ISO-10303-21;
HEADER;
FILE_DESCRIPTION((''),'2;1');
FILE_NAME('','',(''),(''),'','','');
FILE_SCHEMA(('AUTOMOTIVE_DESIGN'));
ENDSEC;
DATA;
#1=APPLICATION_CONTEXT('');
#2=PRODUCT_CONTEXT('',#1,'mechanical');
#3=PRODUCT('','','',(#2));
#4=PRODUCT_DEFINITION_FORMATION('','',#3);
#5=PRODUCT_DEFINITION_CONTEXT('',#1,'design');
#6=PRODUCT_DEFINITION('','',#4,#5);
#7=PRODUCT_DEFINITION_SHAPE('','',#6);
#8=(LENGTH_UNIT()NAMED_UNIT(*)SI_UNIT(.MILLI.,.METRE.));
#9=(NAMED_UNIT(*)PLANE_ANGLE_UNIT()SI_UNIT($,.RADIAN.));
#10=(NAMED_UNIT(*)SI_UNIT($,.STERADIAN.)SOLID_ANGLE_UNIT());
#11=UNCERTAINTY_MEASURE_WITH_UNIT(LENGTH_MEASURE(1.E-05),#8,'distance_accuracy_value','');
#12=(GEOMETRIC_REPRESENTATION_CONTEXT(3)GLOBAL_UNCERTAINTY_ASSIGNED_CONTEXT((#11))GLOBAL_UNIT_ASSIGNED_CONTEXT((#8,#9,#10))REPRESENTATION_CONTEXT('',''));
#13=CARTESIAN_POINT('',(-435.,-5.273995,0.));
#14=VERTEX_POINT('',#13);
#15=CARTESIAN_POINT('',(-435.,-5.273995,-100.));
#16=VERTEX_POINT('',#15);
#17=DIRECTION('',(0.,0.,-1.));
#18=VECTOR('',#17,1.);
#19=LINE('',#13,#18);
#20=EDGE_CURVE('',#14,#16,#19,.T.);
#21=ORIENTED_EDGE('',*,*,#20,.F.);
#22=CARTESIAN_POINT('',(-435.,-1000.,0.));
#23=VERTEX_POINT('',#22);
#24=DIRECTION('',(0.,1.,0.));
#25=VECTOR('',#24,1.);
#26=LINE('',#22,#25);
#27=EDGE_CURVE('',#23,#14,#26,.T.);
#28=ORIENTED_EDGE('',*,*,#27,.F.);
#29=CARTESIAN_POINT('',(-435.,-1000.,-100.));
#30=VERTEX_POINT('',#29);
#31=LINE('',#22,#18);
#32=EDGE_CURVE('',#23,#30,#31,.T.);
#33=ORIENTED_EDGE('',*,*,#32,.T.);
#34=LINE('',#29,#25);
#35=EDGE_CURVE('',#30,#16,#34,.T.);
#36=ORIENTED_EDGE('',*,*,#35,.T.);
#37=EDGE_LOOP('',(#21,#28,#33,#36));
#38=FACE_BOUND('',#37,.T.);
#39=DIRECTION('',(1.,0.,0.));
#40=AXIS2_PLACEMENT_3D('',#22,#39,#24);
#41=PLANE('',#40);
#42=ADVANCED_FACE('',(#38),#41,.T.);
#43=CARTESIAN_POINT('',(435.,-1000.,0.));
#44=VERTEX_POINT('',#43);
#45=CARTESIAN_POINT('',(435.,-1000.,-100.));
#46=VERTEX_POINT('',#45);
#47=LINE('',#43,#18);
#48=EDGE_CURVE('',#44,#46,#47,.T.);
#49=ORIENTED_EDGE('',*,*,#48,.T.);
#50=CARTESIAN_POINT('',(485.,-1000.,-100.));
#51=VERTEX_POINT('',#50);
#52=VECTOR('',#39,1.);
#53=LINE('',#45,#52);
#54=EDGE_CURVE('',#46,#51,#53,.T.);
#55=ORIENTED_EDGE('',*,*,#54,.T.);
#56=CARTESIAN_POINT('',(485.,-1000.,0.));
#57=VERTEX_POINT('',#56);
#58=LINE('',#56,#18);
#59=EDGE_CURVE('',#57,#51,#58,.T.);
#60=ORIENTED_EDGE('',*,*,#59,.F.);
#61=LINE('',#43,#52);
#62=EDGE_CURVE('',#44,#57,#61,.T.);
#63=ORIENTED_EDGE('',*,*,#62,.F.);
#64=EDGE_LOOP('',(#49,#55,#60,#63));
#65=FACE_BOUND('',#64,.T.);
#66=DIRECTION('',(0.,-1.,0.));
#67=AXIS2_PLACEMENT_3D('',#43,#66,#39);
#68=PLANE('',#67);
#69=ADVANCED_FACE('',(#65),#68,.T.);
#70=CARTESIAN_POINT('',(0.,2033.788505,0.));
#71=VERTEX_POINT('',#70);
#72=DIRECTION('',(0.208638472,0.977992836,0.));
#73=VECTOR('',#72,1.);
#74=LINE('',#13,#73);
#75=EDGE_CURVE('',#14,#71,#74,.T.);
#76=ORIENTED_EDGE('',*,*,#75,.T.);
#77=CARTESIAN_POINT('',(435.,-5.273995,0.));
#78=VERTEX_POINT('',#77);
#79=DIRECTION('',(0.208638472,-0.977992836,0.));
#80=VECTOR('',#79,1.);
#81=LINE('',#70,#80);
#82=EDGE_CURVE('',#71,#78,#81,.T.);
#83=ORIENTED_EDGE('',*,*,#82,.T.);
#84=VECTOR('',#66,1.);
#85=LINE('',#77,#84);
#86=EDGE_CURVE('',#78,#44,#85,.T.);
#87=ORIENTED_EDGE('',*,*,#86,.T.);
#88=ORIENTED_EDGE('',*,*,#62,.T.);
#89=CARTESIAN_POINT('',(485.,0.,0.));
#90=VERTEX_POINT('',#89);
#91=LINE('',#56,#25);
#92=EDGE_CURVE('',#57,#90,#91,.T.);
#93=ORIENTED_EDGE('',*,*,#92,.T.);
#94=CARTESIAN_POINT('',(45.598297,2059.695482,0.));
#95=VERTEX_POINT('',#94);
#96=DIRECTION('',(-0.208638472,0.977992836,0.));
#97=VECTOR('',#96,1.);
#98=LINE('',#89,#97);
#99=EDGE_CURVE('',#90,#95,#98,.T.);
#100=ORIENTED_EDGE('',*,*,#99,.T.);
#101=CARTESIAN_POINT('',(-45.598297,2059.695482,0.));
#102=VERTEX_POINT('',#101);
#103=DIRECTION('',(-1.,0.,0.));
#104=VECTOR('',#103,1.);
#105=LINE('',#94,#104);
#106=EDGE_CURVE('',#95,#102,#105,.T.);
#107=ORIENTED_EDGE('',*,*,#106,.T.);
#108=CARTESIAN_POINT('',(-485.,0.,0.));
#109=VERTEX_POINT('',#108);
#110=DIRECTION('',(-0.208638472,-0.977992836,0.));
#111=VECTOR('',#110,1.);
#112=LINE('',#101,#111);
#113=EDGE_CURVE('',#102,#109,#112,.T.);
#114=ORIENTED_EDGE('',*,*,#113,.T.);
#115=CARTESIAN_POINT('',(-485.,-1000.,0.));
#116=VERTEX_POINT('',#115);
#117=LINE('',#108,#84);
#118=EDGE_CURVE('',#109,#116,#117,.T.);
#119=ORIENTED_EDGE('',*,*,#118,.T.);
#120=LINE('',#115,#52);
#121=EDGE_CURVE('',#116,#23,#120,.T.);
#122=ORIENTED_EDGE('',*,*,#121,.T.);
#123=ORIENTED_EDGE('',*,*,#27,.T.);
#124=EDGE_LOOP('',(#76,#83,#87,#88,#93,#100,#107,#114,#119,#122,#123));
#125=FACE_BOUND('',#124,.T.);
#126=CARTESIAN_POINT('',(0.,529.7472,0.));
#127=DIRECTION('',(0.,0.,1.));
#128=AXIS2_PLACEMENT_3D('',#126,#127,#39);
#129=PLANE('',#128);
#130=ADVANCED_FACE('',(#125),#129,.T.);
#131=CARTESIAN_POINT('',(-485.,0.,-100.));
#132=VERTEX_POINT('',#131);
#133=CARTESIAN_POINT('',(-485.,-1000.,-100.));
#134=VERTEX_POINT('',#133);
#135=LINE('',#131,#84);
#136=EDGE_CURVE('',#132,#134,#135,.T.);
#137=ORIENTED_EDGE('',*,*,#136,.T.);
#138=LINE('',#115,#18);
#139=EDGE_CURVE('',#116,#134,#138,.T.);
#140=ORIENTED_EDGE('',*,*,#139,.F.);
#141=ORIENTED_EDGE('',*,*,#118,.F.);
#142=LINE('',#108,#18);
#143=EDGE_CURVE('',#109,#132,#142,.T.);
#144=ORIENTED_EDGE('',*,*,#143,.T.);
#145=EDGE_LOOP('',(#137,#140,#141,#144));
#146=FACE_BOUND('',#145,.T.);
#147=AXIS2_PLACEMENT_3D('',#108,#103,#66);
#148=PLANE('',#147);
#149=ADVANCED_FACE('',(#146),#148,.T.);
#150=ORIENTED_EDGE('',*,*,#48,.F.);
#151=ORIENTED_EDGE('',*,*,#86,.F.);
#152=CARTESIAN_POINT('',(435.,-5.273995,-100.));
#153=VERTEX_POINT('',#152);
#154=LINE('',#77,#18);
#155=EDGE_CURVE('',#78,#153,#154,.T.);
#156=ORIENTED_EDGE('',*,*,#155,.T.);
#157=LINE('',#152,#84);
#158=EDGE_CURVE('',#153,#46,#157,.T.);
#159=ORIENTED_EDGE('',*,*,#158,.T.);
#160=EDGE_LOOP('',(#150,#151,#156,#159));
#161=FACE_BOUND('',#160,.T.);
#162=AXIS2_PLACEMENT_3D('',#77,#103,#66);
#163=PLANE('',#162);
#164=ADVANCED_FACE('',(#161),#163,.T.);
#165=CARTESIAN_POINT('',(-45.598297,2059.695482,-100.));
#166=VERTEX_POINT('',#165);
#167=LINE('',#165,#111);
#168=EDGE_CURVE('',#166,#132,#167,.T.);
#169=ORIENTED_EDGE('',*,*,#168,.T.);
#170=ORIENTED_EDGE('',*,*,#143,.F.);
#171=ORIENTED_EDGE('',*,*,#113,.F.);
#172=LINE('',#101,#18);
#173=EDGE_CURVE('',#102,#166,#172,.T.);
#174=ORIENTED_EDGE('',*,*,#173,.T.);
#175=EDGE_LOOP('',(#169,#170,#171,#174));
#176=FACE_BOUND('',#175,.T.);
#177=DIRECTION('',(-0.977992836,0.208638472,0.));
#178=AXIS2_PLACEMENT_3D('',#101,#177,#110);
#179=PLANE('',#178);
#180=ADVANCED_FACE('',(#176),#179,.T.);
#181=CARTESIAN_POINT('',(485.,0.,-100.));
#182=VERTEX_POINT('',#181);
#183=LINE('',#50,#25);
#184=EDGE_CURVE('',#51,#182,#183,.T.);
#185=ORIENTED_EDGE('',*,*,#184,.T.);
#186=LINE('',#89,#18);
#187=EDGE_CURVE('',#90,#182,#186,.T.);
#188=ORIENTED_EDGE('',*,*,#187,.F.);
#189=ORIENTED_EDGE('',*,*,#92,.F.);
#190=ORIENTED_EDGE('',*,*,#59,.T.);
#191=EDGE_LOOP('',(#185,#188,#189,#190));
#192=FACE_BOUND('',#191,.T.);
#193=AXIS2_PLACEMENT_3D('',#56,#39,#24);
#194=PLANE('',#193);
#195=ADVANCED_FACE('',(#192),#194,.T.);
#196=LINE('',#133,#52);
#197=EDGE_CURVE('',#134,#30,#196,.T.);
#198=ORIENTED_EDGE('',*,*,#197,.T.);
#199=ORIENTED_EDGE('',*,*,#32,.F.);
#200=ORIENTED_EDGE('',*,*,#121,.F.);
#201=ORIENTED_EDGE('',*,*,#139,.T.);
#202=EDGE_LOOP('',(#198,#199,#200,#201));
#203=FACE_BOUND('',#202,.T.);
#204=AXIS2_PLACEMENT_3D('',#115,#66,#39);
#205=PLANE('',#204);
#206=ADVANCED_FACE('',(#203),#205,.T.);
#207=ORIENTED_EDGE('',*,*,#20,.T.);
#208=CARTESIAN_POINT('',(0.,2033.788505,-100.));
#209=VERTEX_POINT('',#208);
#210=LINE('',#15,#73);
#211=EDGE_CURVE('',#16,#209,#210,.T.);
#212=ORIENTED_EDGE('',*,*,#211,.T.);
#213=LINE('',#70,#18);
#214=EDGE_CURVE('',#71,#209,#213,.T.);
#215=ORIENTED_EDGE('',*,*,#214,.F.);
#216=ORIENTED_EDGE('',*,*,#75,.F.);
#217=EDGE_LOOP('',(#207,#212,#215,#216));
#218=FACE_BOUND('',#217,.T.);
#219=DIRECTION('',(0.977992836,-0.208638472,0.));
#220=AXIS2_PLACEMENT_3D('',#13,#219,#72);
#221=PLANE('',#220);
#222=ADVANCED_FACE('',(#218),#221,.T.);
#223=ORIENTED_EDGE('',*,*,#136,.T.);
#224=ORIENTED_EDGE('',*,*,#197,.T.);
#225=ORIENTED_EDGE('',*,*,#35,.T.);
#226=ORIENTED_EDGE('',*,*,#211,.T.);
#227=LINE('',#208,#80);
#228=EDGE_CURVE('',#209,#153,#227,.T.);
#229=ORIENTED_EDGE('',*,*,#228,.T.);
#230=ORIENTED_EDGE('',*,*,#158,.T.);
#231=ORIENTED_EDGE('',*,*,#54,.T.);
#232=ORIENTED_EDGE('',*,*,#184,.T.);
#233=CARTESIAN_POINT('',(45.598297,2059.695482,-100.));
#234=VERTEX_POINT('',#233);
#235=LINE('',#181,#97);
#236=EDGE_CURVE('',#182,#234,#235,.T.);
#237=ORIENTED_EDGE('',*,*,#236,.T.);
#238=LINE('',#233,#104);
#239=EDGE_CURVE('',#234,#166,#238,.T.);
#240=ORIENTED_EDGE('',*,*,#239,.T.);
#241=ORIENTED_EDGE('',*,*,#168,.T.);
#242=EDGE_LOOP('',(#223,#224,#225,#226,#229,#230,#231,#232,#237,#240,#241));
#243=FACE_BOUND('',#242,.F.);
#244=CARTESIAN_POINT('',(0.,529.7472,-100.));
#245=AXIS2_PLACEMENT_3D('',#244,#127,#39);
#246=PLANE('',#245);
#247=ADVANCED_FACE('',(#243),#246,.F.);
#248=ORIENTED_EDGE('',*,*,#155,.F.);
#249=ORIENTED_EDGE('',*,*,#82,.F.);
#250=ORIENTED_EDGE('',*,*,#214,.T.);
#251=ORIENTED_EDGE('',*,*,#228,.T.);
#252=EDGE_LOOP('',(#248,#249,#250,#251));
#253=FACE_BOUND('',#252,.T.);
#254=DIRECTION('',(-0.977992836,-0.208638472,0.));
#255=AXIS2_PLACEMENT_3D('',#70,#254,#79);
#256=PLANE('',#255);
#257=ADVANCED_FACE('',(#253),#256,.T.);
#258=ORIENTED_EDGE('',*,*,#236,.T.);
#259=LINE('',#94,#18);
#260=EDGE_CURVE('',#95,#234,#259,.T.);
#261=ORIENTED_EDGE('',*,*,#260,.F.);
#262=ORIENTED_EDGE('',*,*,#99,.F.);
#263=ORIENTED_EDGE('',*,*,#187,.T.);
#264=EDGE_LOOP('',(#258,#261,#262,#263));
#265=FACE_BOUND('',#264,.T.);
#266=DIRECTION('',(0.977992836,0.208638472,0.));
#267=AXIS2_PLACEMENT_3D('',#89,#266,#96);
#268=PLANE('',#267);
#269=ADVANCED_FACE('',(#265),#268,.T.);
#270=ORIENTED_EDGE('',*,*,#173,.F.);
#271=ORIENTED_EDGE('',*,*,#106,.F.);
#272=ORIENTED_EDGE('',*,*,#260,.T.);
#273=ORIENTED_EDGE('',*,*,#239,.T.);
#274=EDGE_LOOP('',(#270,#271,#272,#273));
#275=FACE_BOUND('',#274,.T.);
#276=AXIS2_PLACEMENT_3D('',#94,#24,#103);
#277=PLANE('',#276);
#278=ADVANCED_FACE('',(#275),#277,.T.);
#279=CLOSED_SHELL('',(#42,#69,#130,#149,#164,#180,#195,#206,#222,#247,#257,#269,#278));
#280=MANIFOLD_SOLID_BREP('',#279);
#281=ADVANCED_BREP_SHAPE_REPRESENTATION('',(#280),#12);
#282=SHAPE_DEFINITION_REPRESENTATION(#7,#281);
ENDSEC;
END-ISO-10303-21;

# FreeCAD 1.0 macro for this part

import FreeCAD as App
import Part
import Sketcher

V = App.Vector
Q = App.Units.Quantity

doc = App.newDocument("Part")
body = doc.addObject("PartDesign::Body", "Body")

# Sketch on XY plane
sketch1 = doc.addObject("Sketcher::SketchObject", "Sketch")
body.addObject(sketch1)
sketch1.AttachmentSupport = (doc.XY_Plane, [""])
sketch1.MapMode = "FlatFace"
sketch1.addGeometry([
    Part.LineSegment(V(-485, 0, 0), V(-485, -1000, 0)),  # 0
    Part.LineSegment(V(-485, -1000, 0), V(-435, -1000, 0)),  # 1
    Part.LineSegment(V(-435, -1000, 0), V(-435, -5.273995, 0)),  # 2
    Part.LineSegment(V(-435, -5.273995, 0), V(0, 2033.788505, 0)),  # 3
    Part.LineSegment(V(0, 2033.788505, 0), V(435, -5.273995, 0)),  # 4
    Part.LineSegment(V(435, -5.273995, 0), V(435, -1000, 0)),  # 5
    Part.LineSegment(V(435, -1000, 0), V(485, -1000, 0)),  # 6
    Part.LineSegment(V(485, -1000, 0), V(485, 0, 0)),  # 7
    Part.LineSegment(V(485, 0, 0), V(45.598297, 2059.695482, 0)),  # 8
    Part.LineSegment(V(45.598297, 2059.695482, 0), V(-45.598297, 2059.695482, 0)),  # 9
    Part.LineSegment(V(-45.598297, 2059.695482, 0), V(-485, 0, 0)),  # 10
], False)
sketch1.addConstraint([
    Sketcher.Constraint("Coincident", 0, 2, 1, 1),
    Sketcher.Constraint("Coincident", 1, 2, 2, 1),
    Sketcher.Constraint("Coincident", 2, 2, 3, 1),
    Sketcher.Constraint("Coincident", 3, 2, 4, 1),
    Sketcher.Constraint("Coincident", 4, 2, 5, 1),
    Sketcher.Constraint("Coincident", 5, 2, 6, 1),
    Sketcher.Constraint("Coincident", 6, 2, 7, 1),
    Sketcher.Constraint("Coincident", 7, 2, 8, 1),
    Sketcher.Constraint("Coincident", 8, 2, 9, 1),
    Sketcher.Constraint("Coincident", 9, 2, 10, 1),
    Sketcher.Constraint("Coincident", 10, 2, 0, 1),
    Sketcher.Constraint("Vertical", 0),
    Sketcher.Constraint("Horizontal", 1),
    Sketcher.Constraint("Vertical", 2),
    Sketcher.Constraint("Vertical", 5),
    Sketcher.Constraint("Horizontal", 6),
    Sketcher.Constraint("Vertical", 7),
    Sketcher.Constraint("Horizontal", 9),
    Sketcher.Constraint("Symmetric", 7, 2, 10, 2, -1, 1),
    Sketcher.Constraint("Symmetric", 2, 2, 4, 2, -2),
    Sketcher.Constraint("PointOnObject", 3, 2, -2),
    Sketcher.Constraint("PointOnObject", 7, 2, -1),
    Sketcher.Constraint("Parallel", 4, 8),
    Sketcher.Constraint("Parallel", 3, 10),
    Sketcher.Constraint("Horizontal", 1, 2, 5, 2),
    Sketcher.Constraint("DistanceX", 1, 1, 1, 2, Q("50 mm")),
    Sketcher.Constraint("DistanceY", 0, 2, 0, 1, Q("1000 mm")),
    Sketcher.Constraint("DistanceX", 0, 2, -1, 1, Q("485 mm")),
    Sketcher.Constraint("DistanceY", 2, 2, 3, 2, Q("2039.0625 mm")),
    Sketcher.Constraint("DistanceX", 9, 2, 9, 1, Q("91.196594 mm")),
    Sketcher.Constraint("DistanceY", 2, 1, 2, 2, Q("994.726005 mm")),
])
pad1 = doc.addObject("PartDesign::Pad", "Pad")
body.addObject(pad1)
pad1.Profile = sketch1
pad1.Length = 100
pad1.Reversed = True

doc.recompute()
